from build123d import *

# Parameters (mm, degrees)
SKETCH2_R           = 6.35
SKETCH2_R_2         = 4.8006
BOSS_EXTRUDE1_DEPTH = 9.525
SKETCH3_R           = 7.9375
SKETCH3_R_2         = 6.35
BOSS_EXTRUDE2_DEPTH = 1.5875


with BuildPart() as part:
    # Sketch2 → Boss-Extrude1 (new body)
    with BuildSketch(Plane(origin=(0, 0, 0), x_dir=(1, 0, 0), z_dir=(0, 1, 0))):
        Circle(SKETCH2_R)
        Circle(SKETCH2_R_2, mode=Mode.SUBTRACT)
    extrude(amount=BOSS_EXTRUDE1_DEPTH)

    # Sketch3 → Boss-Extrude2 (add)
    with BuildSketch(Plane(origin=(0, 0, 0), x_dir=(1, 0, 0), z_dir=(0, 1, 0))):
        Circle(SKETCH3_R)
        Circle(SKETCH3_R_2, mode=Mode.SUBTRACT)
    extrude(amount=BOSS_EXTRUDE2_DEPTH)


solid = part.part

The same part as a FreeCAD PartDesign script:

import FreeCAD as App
import Part
import Sketcher

V = App.Vector
Q = App.Units.Quantity

doc = App.newDocument("Part")
body = doc.addObject("PartDesign::Body", "Body")

# Sketch on XZ plane
sketch1 = doc.addObject("Sketcher::SketchObject", "Sketch")
body.addObject(sketch1)
sketch1.AttachmentSupport = (doc.XZ_Plane, [""])
sketch1.MapMode = "FlatFace"
sketch1.addGeometry(Part.Circle(V(0, 0, 0), V(0, 0, 1), 6.3), False)
sketch1.addGeometry(Part.Circle(V(0, 0, 0), V(0, 0, 1), 4.8), False)
sketch1.addConstraint(Sketcher.Constraint("Coincident", 0, 3, -1, 1))
sketch1.addConstraint(Sketcher.Constraint("Coincident", 1, 3, -1, 1))
sketch1.addConstraint(Sketcher.Constraint("Diameter", 0, Q("0.5 in")))
sketch1.addConstraint(Sketcher.Constraint("Diameter", 1, Q("0.378 in")))
pad1 = doc.addObject("PartDesign::Pad", "Pad")
body.addObject(pad1)
pad1.Profile = sketch1
pad1.Length = Q("0.375 in")
pad1.Reversed = True

# Sketch on XZ plane
sketch2 = doc.addObject("Sketcher::SketchObject", "Sketch001")
body.addObject(sketch2)
sketch2.AttachmentSupport = (doc.XZ_Plane, [""])
sketch2.MapMode = "FlatFace"
sketch2.addGeometry(Part.Circle(V(0, 0, 0), V(0, 0, 1), 8), False)
sketch2.addGeometry(Part.Circle(V(0, 0, 0), V(0, 0, 1), 6), False)
sketch2.addConstraint(Sketcher.Constraint("Coincident", 0, 3, -1, 1))
sketch2.addConstraint(Sketcher.Constraint("Coincident", 1, 3, -1, 1))
sketch2.addConstraint(Sketcher.Constraint("Diameter", 1, Q("0.5 in")))
sketch2.addConstraint(Sketcher.Constraint("Diameter", 0, Q("0.625 in")))
pad2 = doc.addObject("PartDesign::Pad", "Pad001")
body.addObject(pad2)
pad2.Profile = sketch2
pad2.Length = Q("0.0625 in")
pad2.Reversed = True

doc.recompute()
